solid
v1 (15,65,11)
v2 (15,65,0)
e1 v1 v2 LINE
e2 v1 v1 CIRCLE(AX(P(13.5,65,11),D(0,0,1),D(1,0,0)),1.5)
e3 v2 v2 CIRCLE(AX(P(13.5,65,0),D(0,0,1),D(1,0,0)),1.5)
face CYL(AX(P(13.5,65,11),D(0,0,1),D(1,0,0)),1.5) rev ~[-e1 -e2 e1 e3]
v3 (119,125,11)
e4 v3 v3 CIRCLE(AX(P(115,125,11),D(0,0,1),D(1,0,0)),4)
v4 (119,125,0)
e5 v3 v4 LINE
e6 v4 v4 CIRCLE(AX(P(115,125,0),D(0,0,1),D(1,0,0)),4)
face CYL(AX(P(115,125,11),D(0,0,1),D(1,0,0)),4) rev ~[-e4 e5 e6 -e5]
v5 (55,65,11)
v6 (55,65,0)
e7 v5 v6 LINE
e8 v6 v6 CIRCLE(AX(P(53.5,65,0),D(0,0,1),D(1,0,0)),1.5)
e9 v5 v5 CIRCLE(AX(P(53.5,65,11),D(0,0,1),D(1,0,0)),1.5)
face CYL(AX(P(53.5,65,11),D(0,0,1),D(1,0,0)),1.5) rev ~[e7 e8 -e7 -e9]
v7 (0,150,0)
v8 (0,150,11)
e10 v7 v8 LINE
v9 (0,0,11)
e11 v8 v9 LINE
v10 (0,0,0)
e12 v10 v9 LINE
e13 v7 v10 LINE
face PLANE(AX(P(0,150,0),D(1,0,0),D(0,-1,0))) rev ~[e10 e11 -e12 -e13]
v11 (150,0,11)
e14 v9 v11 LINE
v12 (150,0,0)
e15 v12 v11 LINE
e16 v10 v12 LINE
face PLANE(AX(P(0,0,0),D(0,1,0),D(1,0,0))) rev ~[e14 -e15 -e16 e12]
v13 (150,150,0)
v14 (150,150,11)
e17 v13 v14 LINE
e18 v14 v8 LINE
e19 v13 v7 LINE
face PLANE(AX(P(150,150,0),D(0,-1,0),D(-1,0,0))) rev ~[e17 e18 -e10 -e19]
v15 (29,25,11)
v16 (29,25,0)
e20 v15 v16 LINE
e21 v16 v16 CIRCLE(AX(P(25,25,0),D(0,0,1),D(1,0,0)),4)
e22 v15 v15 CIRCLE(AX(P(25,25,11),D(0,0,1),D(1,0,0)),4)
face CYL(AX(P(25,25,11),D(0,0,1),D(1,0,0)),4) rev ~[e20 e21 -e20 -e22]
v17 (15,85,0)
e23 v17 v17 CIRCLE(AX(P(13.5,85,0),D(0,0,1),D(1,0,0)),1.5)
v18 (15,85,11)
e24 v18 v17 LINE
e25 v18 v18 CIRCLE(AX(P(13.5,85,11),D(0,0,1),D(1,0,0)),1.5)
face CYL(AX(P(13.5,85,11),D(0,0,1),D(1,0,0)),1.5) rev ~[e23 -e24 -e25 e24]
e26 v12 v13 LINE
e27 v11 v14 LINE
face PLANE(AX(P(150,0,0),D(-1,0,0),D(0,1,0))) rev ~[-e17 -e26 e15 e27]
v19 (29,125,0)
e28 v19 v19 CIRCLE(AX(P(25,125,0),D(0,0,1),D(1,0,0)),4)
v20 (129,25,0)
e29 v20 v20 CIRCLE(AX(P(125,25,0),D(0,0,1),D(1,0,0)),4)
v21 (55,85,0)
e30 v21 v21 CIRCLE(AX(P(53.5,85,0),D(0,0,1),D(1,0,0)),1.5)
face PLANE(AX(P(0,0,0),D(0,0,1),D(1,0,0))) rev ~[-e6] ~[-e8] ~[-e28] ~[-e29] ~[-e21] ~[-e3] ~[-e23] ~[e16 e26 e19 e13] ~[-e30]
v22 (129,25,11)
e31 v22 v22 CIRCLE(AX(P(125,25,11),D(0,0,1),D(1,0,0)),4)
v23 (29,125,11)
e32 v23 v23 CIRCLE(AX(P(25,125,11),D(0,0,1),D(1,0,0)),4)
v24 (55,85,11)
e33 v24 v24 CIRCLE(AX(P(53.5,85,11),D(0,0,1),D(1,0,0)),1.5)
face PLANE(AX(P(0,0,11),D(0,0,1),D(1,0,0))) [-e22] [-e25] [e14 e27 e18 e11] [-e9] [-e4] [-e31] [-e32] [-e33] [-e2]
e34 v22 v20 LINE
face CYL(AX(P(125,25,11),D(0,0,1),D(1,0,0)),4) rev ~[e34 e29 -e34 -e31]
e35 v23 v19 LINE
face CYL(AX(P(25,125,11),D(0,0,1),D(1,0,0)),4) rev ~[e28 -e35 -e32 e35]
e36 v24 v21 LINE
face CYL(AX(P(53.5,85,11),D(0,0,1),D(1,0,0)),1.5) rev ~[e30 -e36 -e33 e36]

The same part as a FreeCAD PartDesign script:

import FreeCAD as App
import Part
import Sketcher

doc = App.newDocument("Part")
body = doc.addObject("PartDesign::Body", "Body")

sketch1 = body.newObject("Sketcher::SketchObject", "Sketch")
sketch1.AttachmentSupport = (doc.getObject("XY_Plane"), [""])
sketch1.MapMode = "FlatFace"
sketch1.addGeometry(Part.LineSegment(App.Vector(0, 150, 0), App.Vector(0, 0, 0)), False)
sketch1.addGeometry(Part.LineSegment(App.Vector(0, 0, 0), App.Vector(150, 0, 0)), False)
sketch1.addGeometry(Part.LineSegment(App.Vector(150, 0, 0), App.Vector(150, 150, 0)), False)
sketch1.addGeometry(Part.LineSegment(App.Vector(150, 150, 0), App.Vector(0, 150, 0)), False)
sketch1.addConstraint(Sketcher.Constraint("Coincident", 0, 2, 1, 1))
sketch1.addConstraint(Sketcher.Constraint("Coincident", 1, 2, 2, 1))
sketch1.addConstraint(Sketcher.Constraint("Coincident", 2, 2, 3, 1))
sketch1.addConstraint(Sketcher.Constraint("Coincident", 3, 2, 0, 1))
sketch1.addConstraint(Sketcher.Constraint("Vertical", 0))
sketch1.addConstraint(Sketcher.Constraint("Horizontal", 1))
sketch1.addConstraint(Sketcher.Constraint("Vertical", 2))
sketch1.addConstraint(Sketcher.Constraint("Horizontal", 3))
sketch1.addConstraint(Sketcher.Constraint("Coincident", 0, 2, -1, 1))
sketch1.addConstraint(Sketcher.Constraint("Equal", 3, 0))
sketch1.addConstraint(Sketcher.Constraint("DistanceX", 1, 1, 1, 2, 150.0))
pad1 = body.newObject("PartDesign::Pad", "Pad")
pad1.Profile = sketch1
pad1.Length = 11

sketch2 = body.newObject("Sketcher::SketchObject", "Sketch001")
sketch2.AttachmentSupport = (doc.getObject("XY_Plane"), [""])
sketch2.MapMode = "FlatFace"
sketch2.AttachmentOffset = App.Placement(App.Vector(0, 0, 11), App.Rotation())
sketch2.addGeometry(Part.Circle(App.Vector(13.5, 85, 0), App.Vector(0, 0, 1), 1.5), False)
sketch2.addGeometry(Part.Circle(App.Vector(13.5, 65, 0), App.Vector(0, 0, 1), 1.5), False)
sketch2.addGeometry(Part.Circle(App.Vector(53.5, 85, 0), App.Vector(0, 0, 1), 1.5), False)
sketch2.addGeometry(Part.Circle(App.Vector(53.5, 65, 0), App.Vector(0, 0, 1), 1.5), False)
sketch2.addConstraint(Sketcher.Constraint("Equal", 0, 1))
sketch2.addConstraint(Sketcher.Constraint("Equal", 1, 2))
sketch2.addConstraint(Sketcher.Constraint("Equal", 2, 3))
sketch2.addConstraint(Sketcher.Constraint("Horizontal", 0, 3, 2, 3))
sketch2.addConstraint(Sketcher.Constraint("Horizontal", 1, 3, 3, 3))
sketch2.addConstraint(Sketcher.Constraint("Vertical", 0, 3, 1, 3))
sketch2.addConstraint(Sketcher.Constraint("Vertical", 2, 3, 3, 3))
sketch2.addConstraint(Sketcher.Constraint("Diameter", 0, 3.0))
sketch2.addConstraint(Sketcher.Constraint("DistanceY", -1, 1, 1, 3, 65.0))
sketch2.addConstraint(Sketcher.Constraint("DistanceY", 1, 3, 0, 3, 20.0))
sketch2.addConstraint(Sketcher.Constraint("DistanceX", 0, 3, 2, 3, 40.0))
sketch2.addConstraint(Sketcher.Constraint("DistanceX", -1, 1, 0, 3, 13.5))
pocket1 = body.newObject("PartDesign::Pocket", "Pocket")
pocket1.Profile = sketch2
pocket1.Length = 11

sketch3 = body.newObject("Sketcher::SketchObject", "Sketch002")
sketch3.AttachmentSupport = (doc.getObject("XY_Plane"), [""])
sketch3.MapMode = "FlatFace"
sketch3.AttachmentOffset = App.Placement(App.Vector(0, 0, 11), App.Rotation())
sketch3.addGeometry(Part.Circle(App.Vector(25, 25, 0), App.Vector(0, 0, 1), 4), False)
sketch3.addGeometry(Part.Circle(App.Vector(25, 125, 0), App.Vector(0, 0, 1), 4), False)
sketch3.addGeometry(Part.Circle(App.Vector(125, 25, 0), App.Vector(0, 0, 1), 4), False)
sketch3.addGeometry(Part.Circle(App.Vector(115, 125, 0), App.Vector(0, 0, 1), 4), False)
sketch3.addConstraint(Sketcher.Constraint("Equal", 0, 1))
sketch3.addConstraint(Sketcher.Constraint("Equal", 1, 2))
sketch3.addConstraint(Sketcher.Constraint("Equal", 2, 3))
sketch3.addConstraint(Sketcher.Constraint("Horizontal", 0, 3, 2, 3))
sketch3.addConstraint(Sketcher.Constraint("Horizontal", 1, 3, 3, 3))
sketch3.addConstraint(Sketcher.Constraint("Vertical", 0, 3, 1, 3))
sketch3.addConstraint(Sketcher.Constraint("Diameter", 0, 8.0))
sketch3.addConstraint(Sketcher.Constraint("DistanceX", -1, 1, 0, 3, 25.0))
sketch3.addConstraint(Sketcher.Constraint("DistanceY", -1, 1, 0, 3, 25.0))
sketch3.addConstraint(Sketcher.Constraint("DistanceY", -1, 1, 1, 3, 125.0))
sketch3.addConstraint(Sketcher.Constraint("DistanceX", -1, 1, 2, 3, 125.0))
sketch3.addConstraint(Sketcher.Constraint("DistanceX", -1, 1, 3, 3, 115.0))
pocket2 = body.newObject("PartDesign::Pocket", "Pocket001")
pocket2.Profile = sketch3
pocket2.Length = 11

doc.recompute()
